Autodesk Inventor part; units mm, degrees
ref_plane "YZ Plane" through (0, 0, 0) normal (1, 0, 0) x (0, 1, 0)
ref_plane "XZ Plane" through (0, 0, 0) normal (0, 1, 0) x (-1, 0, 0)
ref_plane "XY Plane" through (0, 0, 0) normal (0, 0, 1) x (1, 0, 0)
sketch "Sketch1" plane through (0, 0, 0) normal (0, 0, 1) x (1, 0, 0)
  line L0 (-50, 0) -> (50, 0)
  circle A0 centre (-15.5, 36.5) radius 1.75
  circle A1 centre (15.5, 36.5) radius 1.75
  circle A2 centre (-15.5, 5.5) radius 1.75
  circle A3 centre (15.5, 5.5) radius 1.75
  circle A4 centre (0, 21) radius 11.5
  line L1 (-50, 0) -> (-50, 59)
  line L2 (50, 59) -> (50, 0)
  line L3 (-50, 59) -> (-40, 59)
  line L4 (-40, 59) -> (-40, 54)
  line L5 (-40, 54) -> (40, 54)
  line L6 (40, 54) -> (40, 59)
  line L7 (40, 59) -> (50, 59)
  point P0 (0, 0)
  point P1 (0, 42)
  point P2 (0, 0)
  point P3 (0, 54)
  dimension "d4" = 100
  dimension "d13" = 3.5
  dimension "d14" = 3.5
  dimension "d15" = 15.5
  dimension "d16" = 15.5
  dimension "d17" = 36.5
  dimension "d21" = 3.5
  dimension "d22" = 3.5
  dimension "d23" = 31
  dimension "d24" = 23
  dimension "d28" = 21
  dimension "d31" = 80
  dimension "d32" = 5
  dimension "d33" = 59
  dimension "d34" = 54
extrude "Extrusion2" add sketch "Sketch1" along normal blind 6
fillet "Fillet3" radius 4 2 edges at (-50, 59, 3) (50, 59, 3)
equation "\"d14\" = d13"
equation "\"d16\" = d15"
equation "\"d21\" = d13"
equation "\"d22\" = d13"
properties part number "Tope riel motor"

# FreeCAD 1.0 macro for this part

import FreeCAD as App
import Part
import Sketcher
Q = App.Units.Quantity


def edges_at(feature, points):
    """Names of the edges that pass closest to the given points."""
    edges = feature.Shape.Edges
    near = lambda p: min(range(len(edges)), key=lambda i: edges[i].distToShape(Part.Vertex(*p))[0])
    return sorted({f"Edge{near(p) + 1}" for p in points})


def add_polygon(sketch, points):
    """Adds a closed chain of lines whose ends are joined by coincident constraints."""
    first, n = sketch.GeometryCount, len(points)
    for a, b in zip(points, points[1:] + points[:1]):
        sketch.addGeometry(Part.LineSegment(App.Vector(*a, 0), App.Vector(*b, 0)), False)
    for i in range(n):
        sketch.addConstraint(Sketcher.Constraint("Coincident", first + i, 2, first + (i + 1) % n, 1))

doc = App.newDocument("Part")
params = doc.addObject("Spreadsheet::Sheet", "Params")
for row, (alias, value) in enumerate([
    ("sketch1_diameter", "23 mm"),
    ("sketch1_diameter2", "3.5 mm"),
    ("sketch1_width", "100 mm"),
    ("sketch1_width2", "80 mm"),
    ("sketch1_height", "59 mm"),
    ("pad1_length", "6 mm"),
    ("fillet_radius", "4 mm"),
], start=1):
    params.set(f"A{row}", alias)
    params.set(f"B{row}", "=" + value)
    params.setAlias(f"B{row}", alias)

body = doc.addObject("PartDesign::Body", "Body")

# Sketch on XY plane
sketch1 = body.newObject("Sketcher::SketchObject", "Sketch")
sketch1.AttachmentSupport = (doc.getObject("XY_Plane"), [""])
sketch1.MapMode = "FlatFace"
add_polygon(sketch1, [(-50, 59), (-50, 0), (50, 0), (50, 59), (40, 59), (40, 54), (-40, 54), (-40, 59)])  # lines 0-7
sketch1.addGeometry(Part.Circle(App.Vector(-15.5, 5.5, 0), App.Vector(0, 0, 1), 1.75), False)  # 8
sketch1.addGeometry(Part.Circle(App.Vector(15.5, 5.5, 0), App.Vector(0, 0, 1), 1.75), False)  # 9
sketch1.addGeometry(Part.Circle(App.Vector(0, 21, 0), App.Vector(0, 0, 1), 11.5), False)  # 10
sketch1.addGeometry(Part.Circle(App.Vector(-15.5, 36.5, 0), App.Vector(0, 0, 1), 1.75), False)  # 11
sketch1.addGeometry(Part.Circle(App.Vector(15.5, 36.5, 0), App.Vector(0, 0, 1), 1.75), False)  # 12
sketch1.addConstraint([
    Sketcher.Constraint("Vertical", 0),
    Sketcher.Constraint("Horizontal", 1),
    Sketcher.Constraint("Vertical", 2),
    Sketcher.Constraint("Horizontal", 3),
    Sketcher.Constraint("Vertical", 4),
    Sketcher.Constraint("Horizontal", 5),
    Sketcher.Constraint("Vertical", 6),
    Sketcher.Constraint("Horizontal", 7),
    Sketcher.Constraint("Equal", 8, 9),
    Sketcher.Constraint("Equal", 9, 11),
    Sketcher.Constraint("Equal", 11, 12),
    Sketcher.Constraint("Symmetric", 0, 2, 1, 2, -1, 1),
    Sketcher.Constraint("Symmetric", 8, 3, 9, 3, -2),
    Sketcher.Constraint("Symmetric", 11, 3, 12, 3, -2),
    Sketcher.Constraint("Symmetric", 3, 2, 6, 2, -2),
    Sketcher.Constraint("PointOnObject", 10, 3, -2),
    Sketcher.Constraint("Vertical", 8, 3, 11, 3),
    Sketcher.Constraint("Diameter", 10, Q("23 mm")),
    Sketcher.Constraint("Diameter", 8, Q("3.5 mm")),
    Sketcher.Constraint("DistanceX", 1, 1, 1, 2, Q("100 mm")),
    Sketcher.Constraint("DistanceX", 5, 2, 5, 1, Q("80 mm")),
    Sketcher.Constraint("DistanceY", 0, 2, 0, 1, Q("59 mm")),
    Sketcher.Constraint("DistanceY", 4, 2, 4, 1, Q("5 mm")),
    Sketcher.Constraint("DistanceY", -1, 1, 10, 3, Q("21 mm")),
    Sketcher.Constraint("DistanceX", 8, 3, 9, 3, Q("31 mm")),
    Sketcher.Constraint("DistanceY", 8, 3, 11, 3, Q("31 mm")),
    Sketcher.Constraint("DistanceY", -1, 1, 11, 3, Q("36.5 mm")),
])
sketch1.setExpression("Constraints[25]", "Params.sketch1_diameter")
sketch1.setExpression("Constraints[26]", "Params.sketch1_diameter2")
sketch1.setExpression("Constraints[27]", "Params.sketch1_width")
sketch1.setExpression("Constraints[28]", "Params.sketch1_width2")
sketch1.setExpression("Constraints[29]", "Params.sketch1_height")
pad1 = body.newObject("PartDesign::Pad", "Pad")
pad1.Profile = sketch1
pad1.setExpression("Length", "Params.pad1_length")
doc.recompute()

fillet = body.newObject("PartDesign::Fillet", "Fillet")
fillet.Base = (pad1, edges_at(pad1, [(-50, 59, 3), (50, 59, 3)]))
fillet.setExpression("Radius", "Params.fillet_radius")

doc.recompute()
